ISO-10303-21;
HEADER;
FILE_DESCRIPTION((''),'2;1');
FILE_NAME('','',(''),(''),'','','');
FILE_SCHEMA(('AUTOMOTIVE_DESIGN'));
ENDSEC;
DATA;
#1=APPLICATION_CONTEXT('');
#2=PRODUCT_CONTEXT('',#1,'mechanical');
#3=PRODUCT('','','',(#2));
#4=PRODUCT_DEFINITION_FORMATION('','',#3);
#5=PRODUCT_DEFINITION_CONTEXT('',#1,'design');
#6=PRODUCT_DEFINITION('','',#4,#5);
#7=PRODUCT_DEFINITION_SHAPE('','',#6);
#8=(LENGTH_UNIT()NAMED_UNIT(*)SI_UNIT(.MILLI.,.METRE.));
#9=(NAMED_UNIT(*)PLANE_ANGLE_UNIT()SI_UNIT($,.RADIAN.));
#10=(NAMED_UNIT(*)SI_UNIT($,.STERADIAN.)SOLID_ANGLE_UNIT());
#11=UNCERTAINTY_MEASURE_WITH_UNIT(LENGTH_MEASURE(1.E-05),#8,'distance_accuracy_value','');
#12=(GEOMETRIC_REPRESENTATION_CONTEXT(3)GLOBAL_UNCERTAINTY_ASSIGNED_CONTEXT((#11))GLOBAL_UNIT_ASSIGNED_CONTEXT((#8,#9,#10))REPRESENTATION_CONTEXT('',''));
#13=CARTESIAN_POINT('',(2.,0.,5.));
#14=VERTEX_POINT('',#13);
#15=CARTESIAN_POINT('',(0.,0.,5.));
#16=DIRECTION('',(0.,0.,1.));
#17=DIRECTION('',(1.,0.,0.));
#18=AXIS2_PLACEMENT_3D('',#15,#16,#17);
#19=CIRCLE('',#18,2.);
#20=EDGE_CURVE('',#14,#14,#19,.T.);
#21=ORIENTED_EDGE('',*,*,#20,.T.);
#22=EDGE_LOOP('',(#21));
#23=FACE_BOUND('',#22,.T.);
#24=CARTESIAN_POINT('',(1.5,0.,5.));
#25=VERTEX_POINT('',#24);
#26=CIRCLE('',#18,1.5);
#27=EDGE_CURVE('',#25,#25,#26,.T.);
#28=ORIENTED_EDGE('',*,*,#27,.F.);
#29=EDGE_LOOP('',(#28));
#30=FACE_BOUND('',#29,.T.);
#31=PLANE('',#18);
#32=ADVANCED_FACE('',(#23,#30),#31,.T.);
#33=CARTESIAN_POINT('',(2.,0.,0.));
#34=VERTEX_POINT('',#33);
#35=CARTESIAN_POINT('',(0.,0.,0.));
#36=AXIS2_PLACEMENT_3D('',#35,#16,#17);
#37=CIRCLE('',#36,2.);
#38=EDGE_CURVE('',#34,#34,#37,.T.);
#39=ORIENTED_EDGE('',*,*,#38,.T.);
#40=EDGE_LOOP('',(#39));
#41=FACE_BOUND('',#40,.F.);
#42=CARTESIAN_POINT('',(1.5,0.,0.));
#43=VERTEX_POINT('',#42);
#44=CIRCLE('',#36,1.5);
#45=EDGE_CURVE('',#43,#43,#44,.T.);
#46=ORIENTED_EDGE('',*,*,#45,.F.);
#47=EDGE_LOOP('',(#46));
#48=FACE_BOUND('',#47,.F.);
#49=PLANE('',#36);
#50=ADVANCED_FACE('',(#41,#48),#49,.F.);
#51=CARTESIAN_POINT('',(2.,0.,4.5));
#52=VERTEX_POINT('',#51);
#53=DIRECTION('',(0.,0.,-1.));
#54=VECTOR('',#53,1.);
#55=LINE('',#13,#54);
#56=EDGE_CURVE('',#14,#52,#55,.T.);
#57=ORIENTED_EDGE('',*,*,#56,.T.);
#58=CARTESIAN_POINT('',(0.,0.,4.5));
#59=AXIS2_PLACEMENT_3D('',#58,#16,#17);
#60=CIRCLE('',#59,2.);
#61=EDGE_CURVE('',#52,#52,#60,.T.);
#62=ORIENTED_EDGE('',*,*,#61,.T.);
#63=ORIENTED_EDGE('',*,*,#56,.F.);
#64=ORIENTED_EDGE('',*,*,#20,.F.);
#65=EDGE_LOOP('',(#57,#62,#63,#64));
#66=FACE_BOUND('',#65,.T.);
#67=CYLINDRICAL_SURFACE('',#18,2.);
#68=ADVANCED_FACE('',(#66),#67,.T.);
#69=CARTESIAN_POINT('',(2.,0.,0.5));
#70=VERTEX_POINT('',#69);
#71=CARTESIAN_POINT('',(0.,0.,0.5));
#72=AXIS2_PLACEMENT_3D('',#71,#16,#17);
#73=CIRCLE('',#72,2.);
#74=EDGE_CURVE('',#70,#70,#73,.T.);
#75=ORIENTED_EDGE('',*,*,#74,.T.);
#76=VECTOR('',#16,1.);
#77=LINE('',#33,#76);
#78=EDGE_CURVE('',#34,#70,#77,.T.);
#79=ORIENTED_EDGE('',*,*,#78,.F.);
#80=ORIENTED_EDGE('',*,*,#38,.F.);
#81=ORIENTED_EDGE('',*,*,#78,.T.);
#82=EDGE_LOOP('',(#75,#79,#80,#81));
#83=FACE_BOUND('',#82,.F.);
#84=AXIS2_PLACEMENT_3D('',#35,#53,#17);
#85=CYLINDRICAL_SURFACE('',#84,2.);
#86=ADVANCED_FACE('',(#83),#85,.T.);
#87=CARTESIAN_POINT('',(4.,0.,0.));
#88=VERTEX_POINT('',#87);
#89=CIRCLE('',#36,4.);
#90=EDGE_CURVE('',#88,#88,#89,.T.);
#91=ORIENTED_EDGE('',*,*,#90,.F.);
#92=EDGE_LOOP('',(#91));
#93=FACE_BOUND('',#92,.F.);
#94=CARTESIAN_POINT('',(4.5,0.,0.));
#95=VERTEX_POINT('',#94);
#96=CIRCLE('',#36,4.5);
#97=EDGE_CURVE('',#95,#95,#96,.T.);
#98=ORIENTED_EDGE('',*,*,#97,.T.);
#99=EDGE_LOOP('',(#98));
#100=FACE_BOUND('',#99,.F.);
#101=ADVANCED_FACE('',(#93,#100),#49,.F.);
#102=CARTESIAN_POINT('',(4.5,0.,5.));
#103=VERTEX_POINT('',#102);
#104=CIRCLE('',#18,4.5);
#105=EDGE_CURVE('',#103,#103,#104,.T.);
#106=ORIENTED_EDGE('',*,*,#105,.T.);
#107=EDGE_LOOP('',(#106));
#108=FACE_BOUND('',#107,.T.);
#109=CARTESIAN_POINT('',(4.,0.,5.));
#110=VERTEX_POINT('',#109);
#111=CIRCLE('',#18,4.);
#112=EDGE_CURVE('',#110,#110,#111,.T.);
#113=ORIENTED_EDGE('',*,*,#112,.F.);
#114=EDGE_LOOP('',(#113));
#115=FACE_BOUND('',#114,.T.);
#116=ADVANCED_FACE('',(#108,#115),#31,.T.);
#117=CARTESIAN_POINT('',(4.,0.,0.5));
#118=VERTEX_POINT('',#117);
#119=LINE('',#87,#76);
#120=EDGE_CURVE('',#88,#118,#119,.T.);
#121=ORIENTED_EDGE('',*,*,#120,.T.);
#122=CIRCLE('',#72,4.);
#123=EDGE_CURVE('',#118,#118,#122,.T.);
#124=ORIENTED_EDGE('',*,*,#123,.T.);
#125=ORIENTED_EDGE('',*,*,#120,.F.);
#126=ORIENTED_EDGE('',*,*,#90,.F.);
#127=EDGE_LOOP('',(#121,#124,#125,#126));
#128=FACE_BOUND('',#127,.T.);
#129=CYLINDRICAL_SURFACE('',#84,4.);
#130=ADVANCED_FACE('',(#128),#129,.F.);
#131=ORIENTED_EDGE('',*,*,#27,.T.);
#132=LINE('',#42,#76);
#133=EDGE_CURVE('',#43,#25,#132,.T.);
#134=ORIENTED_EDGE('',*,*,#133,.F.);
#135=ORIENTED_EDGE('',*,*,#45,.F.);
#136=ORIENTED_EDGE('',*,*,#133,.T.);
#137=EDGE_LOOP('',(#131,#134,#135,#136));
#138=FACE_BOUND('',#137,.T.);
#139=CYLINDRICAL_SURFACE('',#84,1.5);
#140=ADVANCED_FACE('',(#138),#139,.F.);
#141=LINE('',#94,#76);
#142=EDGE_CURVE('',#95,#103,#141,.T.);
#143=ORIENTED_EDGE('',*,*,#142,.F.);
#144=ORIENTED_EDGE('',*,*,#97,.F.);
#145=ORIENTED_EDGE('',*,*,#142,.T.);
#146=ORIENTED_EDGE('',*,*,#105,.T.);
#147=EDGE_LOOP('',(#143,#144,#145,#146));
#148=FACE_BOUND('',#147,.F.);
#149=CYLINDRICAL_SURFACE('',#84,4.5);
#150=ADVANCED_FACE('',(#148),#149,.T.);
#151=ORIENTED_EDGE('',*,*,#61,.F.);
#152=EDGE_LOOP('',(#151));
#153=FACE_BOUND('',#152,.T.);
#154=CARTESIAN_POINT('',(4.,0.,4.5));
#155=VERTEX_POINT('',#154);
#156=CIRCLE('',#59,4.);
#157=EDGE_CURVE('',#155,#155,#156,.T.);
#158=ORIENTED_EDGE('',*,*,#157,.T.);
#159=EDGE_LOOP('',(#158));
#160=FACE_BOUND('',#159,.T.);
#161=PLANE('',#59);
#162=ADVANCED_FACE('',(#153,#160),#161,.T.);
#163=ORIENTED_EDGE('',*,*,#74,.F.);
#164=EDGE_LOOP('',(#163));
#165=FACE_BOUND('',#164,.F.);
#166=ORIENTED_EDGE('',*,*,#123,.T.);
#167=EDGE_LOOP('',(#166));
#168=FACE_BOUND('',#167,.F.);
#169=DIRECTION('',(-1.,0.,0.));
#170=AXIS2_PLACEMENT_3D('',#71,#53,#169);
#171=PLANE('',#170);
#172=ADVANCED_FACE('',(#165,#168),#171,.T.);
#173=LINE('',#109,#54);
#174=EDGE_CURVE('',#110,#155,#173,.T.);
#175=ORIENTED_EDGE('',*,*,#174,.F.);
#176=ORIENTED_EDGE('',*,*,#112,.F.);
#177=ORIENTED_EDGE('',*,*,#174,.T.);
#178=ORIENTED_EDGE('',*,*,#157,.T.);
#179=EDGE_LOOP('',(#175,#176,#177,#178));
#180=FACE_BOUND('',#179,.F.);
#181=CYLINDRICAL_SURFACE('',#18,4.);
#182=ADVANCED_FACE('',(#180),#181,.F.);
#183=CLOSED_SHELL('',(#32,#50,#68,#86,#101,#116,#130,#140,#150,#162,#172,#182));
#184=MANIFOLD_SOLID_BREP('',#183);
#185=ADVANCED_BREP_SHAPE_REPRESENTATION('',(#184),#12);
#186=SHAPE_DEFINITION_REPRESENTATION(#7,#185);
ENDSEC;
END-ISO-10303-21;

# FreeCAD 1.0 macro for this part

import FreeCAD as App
import Part
import Sketcher

V = App.Vector

doc = App.newDocument("Part")
body = doc.addObject("PartDesign::Body", "Body")

# Sketch on XY plane
sketch1 = body.newObject("Sketcher::SketchObject", "Sketch")
sketch1.AttachmentSupport = (doc.getObject("XY_Plane"), [""])
sketch1.MapMode = "FlatFace"
sketch1.addGeometry([
    Part.Circle(V(0, 0, 0), V(0, 0, 1), 4.5),
    Part.Circle(V(0, 0, 0), V(0, 0, 1), 1.5),
], False)
sketch1.addConstraint([
    Sketcher.Constraint("Coincident", 0, 3, -1, 1),
    Sketcher.Constraint("Coincident", 1, 3, -1, 1),
    Sketcher.Constraint("Diameter", 0, 9.0),
    Sketcher.Constraint("Diameter", 1, 3.0),
])
pad1 = body.newObject("PartDesign::Pad", "Pad")
pad1.Profile = sketch1
pad1.Length = 5

# Sketch on XY plane
sketch2 = body.newObject("Sketcher::SketchObject", "Sketch001")
sketch2.AttachmentSupport = (doc.getObject("XY_Plane"), [""])
sketch2.MapMode = "FlatFace"
sketch2.AttachmentOffset = App.Placement(V(0, 0, 5), App.Rotation())
sketch2.addGeometry([
    Part.Circle(V(0, 0, 0), V(0, 0, 1), 4),
    Part.Circle(V(0, 0, 0), V(0, 0, 1), 2),
], False)
sketch2.addConstraint([
    Sketcher.Constraint("Coincident", 0, 3, -1, 1),
    Sketcher.Constraint("Coincident", 1, 3, -1, 1),
    Sketcher.Constraint("Diameter", 0, 8.0),
    Sketcher.Constraint("Diameter", 1, 4.0),
])
pocket1 = body.newObject("PartDesign::Pocket", "Pocket")
pocket1.Profile = sketch2
pocket1.Length = 0.5
doc.recompute()

datumplane = body.newObject("PartDesign::Plane", "DatumPlane")
datumplane.AttachmentSupport = (doc.getObject("XY_Plane"), [""])
datumplane.MapMode = "FlatFace"
datumplane.AttachmentOffset = App.Placement(V(0, 0, 2.5), App.Rotation())
mirrored = body.newObject("PartDesign::Mirrored", "Mirrored")
mirrored.Originals = [pocket1]
mirrored.MirrorPlane = (datumplane, [""])
body.Tip = mirrored

doc.recompute()
